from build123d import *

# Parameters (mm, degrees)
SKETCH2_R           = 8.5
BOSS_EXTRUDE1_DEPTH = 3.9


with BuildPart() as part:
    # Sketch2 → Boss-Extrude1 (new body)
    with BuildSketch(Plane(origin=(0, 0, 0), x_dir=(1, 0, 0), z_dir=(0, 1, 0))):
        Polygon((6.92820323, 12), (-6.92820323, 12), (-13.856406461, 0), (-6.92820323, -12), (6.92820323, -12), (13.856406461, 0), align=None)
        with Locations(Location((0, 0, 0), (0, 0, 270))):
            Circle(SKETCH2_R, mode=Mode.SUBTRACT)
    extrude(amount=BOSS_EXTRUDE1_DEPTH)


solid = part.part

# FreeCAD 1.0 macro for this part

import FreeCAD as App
import Part
import Sketcher
Q = App.Units.Quantity

doc = App.newDocument("Part")
body = doc.addObject("PartDesign::Body", "Body")

# Sketch on XZ plane
sketch1 = body.newObject("Sketcher::SketchObject", "Sketch")
sketch1.AttachmentSupport = (doc.getObject("XZ_Plane"), [""])
sketch1.MapMode = "FlatFace"
sketch1.addGeometry([
    Part.LineSegment(App.Vector(6.928203, -12, 0), App.Vector(-6.928203, -12, 0)),  # 0
    Part.LineSegment(App.Vector(-6.928203, -12, 0), App.Vector(-13.856406, 0, 0)),  # 1
    Part.LineSegment(App.Vector(-13.856406, 0, 0), App.Vector(-6.928203, 12, 0)),  # 2
    Part.LineSegment(App.Vector(-6.928203, 12, 0), App.Vector(6.928203, 12, 0)),  # 3
    Part.LineSegment(App.Vector(6.928203, 12, 0), App.Vector(13.856406, 0, 0)),  # 4
    Part.LineSegment(App.Vector(13.856406, 0, 0), App.Vector(6.928203, -12, 0)),  # 5
    Part.Circle(App.Vector(0, 0, 0), App.Vector(0, 0, 1), 8.5),  # 6
], False)
sketch1.addConstraint([
    Sketcher.Constraint("Coincident", 0, 2, 1, 1),
    Sketcher.Constraint("Coincident", 1, 2, 2, 1),
    Sketcher.Constraint("Coincident", 2, 2, 3, 1),
    Sketcher.Constraint("Coincident", 3, 2, 4, 1),
    Sketcher.Constraint("Coincident", 4, 2, 5, 1),
    Sketcher.Constraint("Coincident", 5, 2, 0, 1),
    Sketcher.Constraint("Horizontal", 0),
    Sketcher.Constraint("Horizontal", 3),
    Sketcher.Constraint("Coincident", 6, 3, -1, 1),
    Sketcher.Constraint("Symmetric", 0, 2, 3, 2, -1, 1),
    Sketcher.Constraint("Symmetric", 1, 2, 4, 2, -1, 1),
    Sketcher.Constraint("PointOnObject", 1, 2, -1),
    Sketcher.Constraint("Parallel", 2, 5),
    Sketcher.Constraint("Vertical", 0, 2, 2, 2),
    Sketcher.Constraint("Diameter", 6, Q("17 mm")),
    Sketcher.Constraint("Angle", 1, Q("120 deg")),
    Sketcher.Constraint("DistanceY", 0, 2, -1, 1, Q("12 mm")),
    Sketcher.Constraint("DistanceX", 0, 2, 0, 1, Q("13.856406 mm")),
])
pad1 = body.newObject("PartDesign::Pad", "Pad")
pad1.Profile = sketch1
pad1.Length = 3.9
pad1.Reversed = True

doc.recompute()
